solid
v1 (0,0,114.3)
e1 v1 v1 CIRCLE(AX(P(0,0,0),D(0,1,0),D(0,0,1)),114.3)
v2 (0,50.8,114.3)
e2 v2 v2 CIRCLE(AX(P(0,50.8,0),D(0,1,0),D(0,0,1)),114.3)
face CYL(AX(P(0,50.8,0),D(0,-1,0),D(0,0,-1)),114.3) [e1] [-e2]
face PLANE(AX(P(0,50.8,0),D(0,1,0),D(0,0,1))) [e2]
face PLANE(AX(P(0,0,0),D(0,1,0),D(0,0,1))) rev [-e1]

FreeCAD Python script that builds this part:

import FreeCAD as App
import Part
import Sketcher
Q = App.Units.Quantity

doc = App.newDocument("Part")
body = doc.addObject("PartDesign::Body", "Body")

# Sketch on XZ plane
sketch1 = body.newObject("Sketcher::SketchObject", "Sketch")
sketch1.AttachmentSupport = (doc.getObject("XZ_Plane"), [""])
sketch1.MapMode = "FlatFace"
sketch1.addGeometry(Part.Circle(App.Vector(0, 0, 0), App.Vector(0, 0, 1), 114), False)
sketch1.addConstraint([
    Sketcher.Constraint("Coincident", 0, 3, -1, 1),
    Sketcher.Constraint("Diameter", 0, Q("9 in")),
])
pad1 = body.newObject("PartDesign::Pad", "Pad")
pad1.Profile = sketch1
pad1.Length = Q("2 in")
pad1.Reversed = True

doc.recompute()
